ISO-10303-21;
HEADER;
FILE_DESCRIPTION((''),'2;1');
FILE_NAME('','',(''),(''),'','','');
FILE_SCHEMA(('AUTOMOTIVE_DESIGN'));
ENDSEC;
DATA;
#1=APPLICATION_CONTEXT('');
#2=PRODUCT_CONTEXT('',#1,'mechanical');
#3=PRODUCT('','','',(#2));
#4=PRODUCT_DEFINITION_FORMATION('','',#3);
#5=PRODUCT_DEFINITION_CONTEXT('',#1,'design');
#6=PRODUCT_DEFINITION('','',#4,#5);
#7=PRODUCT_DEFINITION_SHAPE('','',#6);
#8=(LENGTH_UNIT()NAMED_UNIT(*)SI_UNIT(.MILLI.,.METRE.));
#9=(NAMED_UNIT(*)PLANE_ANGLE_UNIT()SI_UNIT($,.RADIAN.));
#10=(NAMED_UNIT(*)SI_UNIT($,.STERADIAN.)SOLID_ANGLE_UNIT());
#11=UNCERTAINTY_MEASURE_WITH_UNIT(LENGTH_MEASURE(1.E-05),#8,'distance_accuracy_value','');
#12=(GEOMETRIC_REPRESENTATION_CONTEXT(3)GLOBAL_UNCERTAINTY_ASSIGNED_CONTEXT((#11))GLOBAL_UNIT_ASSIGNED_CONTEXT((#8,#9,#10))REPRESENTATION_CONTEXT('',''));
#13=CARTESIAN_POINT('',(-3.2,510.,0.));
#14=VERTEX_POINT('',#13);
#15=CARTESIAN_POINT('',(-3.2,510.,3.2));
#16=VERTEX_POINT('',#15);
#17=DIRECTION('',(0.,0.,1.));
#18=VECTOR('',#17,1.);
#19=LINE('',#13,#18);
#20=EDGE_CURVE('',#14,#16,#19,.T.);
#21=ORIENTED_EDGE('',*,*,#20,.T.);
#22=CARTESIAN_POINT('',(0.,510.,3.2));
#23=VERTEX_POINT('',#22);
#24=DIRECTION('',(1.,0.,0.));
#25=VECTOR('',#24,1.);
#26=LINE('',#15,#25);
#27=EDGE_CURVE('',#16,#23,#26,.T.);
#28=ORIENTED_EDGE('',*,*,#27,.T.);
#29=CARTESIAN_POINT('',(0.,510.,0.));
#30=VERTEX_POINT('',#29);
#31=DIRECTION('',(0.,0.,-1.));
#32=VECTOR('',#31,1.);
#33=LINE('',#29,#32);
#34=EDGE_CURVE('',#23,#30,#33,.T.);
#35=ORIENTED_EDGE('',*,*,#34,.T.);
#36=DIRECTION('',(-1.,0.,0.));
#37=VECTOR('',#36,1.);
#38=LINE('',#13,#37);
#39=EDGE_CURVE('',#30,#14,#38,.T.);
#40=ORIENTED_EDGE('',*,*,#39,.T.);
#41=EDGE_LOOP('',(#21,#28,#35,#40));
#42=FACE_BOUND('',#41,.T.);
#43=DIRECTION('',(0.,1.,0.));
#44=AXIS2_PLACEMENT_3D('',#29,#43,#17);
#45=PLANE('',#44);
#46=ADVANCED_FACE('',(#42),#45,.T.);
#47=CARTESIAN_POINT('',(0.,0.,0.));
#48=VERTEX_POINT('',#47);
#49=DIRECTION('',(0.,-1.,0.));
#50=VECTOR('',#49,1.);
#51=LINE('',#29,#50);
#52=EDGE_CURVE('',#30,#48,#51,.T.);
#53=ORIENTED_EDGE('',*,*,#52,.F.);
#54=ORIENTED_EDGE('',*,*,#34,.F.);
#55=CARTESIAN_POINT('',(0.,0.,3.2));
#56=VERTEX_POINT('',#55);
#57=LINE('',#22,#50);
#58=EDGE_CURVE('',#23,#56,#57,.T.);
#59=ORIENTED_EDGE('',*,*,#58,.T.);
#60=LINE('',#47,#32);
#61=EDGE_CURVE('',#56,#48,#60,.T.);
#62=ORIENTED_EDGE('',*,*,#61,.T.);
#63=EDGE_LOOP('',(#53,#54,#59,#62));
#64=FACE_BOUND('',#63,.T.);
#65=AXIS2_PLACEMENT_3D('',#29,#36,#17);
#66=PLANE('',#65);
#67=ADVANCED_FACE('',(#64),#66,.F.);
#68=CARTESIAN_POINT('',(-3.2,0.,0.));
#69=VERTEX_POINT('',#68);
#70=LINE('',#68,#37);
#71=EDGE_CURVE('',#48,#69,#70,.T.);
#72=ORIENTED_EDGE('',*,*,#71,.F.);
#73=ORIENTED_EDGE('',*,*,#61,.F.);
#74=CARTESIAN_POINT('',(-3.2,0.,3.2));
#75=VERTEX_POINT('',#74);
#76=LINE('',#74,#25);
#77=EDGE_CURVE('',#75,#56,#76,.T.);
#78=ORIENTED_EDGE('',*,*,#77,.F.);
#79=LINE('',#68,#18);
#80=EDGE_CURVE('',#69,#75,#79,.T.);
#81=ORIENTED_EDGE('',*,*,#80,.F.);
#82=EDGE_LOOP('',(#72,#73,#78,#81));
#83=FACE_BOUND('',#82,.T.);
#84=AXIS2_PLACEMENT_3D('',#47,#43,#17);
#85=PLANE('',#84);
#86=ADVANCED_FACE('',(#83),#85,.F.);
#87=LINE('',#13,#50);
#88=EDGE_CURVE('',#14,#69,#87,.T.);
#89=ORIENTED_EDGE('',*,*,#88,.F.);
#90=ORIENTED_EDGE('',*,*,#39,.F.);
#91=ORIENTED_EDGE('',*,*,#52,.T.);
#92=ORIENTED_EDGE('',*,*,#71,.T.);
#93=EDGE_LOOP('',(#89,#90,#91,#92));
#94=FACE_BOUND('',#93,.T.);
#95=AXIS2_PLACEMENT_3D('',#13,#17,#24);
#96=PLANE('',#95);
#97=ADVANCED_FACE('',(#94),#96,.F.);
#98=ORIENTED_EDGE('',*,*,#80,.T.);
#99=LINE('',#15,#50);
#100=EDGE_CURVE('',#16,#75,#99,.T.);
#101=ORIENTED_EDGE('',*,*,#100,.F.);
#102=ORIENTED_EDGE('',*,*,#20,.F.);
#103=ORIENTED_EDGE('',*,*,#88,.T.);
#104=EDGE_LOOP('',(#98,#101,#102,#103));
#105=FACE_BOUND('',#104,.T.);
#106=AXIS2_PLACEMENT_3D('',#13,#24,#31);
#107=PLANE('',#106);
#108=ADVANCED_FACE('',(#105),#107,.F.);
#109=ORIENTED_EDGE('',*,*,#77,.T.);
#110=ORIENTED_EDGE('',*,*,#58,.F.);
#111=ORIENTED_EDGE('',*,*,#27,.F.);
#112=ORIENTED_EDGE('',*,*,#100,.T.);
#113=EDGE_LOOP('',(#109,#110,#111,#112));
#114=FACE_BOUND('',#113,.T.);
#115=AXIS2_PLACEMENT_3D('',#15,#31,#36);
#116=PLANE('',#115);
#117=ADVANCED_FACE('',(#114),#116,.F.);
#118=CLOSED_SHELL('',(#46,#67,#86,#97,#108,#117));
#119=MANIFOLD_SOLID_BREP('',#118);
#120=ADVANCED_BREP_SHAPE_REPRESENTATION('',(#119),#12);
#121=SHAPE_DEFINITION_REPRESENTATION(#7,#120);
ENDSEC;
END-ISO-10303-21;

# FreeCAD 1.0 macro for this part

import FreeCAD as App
import Part
import Sketcher

V = App.Vector
Q = App.Units.Quantity


def add_polygon(sketch, points):
    """Adds a closed chain of lines whose ends are joined by coincident constraints."""
    first, n = sketch.GeometryCount, len(points)
    for a, b in zip(points, points[1:] + points[:1]):
        sketch.addGeometry(Part.LineSegment(App.Vector(*a, 0), App.Vector(*b, 0)), False)
    for i in range(n):
        sketch.addConstraint(Sketcher.Constraint("Coincident", first + i, 2, first + (i + 1) % n, 1))

doc = App.newDocument("Part")
body = doc.addObject("PartDesign::Body", "Body")

sketch1 = body.newObject("Sketcher::SketchObject", "Sketch")
sketch1.AttachmentSupport = (doc.getObject("XZ_Plane"), [""])
sketch1.MapMode = "FlatFace"
add_polygon(sketch1, [(-3.2, 0), (-3.2, 3.2), (0, 3.2), (0, 0)])
sketch1.addConstraint(Sketcher.Constraint("Vertical", 0))
sketch1.addConstraint(Sketcher.Constraint("Horizontal", 1))
sketch1.addConstraint(Sketcher.Constraint("Vertical", 2))
sketch1.addConstraint(Sketcher.Constraint("Horizontal", 3))
sketch1.addConstraint(Sketcher.Constraint("Coincident", 2, 2, -1, 1))
sketch1.addConstraint(Sketcher.Constraint("Equal", 3, 0))
sketch1.addConstraint(Sketcher.Constraint("DistanceX", 1, 1, 1, 2, Q("3.2 mm")))
pad1 = body.newObject("PartDesign::Pad", "Pad")
pad1.Profile = sketch1
pad1.Length = 510
pad1.Reversed = True

doc.recompute()
